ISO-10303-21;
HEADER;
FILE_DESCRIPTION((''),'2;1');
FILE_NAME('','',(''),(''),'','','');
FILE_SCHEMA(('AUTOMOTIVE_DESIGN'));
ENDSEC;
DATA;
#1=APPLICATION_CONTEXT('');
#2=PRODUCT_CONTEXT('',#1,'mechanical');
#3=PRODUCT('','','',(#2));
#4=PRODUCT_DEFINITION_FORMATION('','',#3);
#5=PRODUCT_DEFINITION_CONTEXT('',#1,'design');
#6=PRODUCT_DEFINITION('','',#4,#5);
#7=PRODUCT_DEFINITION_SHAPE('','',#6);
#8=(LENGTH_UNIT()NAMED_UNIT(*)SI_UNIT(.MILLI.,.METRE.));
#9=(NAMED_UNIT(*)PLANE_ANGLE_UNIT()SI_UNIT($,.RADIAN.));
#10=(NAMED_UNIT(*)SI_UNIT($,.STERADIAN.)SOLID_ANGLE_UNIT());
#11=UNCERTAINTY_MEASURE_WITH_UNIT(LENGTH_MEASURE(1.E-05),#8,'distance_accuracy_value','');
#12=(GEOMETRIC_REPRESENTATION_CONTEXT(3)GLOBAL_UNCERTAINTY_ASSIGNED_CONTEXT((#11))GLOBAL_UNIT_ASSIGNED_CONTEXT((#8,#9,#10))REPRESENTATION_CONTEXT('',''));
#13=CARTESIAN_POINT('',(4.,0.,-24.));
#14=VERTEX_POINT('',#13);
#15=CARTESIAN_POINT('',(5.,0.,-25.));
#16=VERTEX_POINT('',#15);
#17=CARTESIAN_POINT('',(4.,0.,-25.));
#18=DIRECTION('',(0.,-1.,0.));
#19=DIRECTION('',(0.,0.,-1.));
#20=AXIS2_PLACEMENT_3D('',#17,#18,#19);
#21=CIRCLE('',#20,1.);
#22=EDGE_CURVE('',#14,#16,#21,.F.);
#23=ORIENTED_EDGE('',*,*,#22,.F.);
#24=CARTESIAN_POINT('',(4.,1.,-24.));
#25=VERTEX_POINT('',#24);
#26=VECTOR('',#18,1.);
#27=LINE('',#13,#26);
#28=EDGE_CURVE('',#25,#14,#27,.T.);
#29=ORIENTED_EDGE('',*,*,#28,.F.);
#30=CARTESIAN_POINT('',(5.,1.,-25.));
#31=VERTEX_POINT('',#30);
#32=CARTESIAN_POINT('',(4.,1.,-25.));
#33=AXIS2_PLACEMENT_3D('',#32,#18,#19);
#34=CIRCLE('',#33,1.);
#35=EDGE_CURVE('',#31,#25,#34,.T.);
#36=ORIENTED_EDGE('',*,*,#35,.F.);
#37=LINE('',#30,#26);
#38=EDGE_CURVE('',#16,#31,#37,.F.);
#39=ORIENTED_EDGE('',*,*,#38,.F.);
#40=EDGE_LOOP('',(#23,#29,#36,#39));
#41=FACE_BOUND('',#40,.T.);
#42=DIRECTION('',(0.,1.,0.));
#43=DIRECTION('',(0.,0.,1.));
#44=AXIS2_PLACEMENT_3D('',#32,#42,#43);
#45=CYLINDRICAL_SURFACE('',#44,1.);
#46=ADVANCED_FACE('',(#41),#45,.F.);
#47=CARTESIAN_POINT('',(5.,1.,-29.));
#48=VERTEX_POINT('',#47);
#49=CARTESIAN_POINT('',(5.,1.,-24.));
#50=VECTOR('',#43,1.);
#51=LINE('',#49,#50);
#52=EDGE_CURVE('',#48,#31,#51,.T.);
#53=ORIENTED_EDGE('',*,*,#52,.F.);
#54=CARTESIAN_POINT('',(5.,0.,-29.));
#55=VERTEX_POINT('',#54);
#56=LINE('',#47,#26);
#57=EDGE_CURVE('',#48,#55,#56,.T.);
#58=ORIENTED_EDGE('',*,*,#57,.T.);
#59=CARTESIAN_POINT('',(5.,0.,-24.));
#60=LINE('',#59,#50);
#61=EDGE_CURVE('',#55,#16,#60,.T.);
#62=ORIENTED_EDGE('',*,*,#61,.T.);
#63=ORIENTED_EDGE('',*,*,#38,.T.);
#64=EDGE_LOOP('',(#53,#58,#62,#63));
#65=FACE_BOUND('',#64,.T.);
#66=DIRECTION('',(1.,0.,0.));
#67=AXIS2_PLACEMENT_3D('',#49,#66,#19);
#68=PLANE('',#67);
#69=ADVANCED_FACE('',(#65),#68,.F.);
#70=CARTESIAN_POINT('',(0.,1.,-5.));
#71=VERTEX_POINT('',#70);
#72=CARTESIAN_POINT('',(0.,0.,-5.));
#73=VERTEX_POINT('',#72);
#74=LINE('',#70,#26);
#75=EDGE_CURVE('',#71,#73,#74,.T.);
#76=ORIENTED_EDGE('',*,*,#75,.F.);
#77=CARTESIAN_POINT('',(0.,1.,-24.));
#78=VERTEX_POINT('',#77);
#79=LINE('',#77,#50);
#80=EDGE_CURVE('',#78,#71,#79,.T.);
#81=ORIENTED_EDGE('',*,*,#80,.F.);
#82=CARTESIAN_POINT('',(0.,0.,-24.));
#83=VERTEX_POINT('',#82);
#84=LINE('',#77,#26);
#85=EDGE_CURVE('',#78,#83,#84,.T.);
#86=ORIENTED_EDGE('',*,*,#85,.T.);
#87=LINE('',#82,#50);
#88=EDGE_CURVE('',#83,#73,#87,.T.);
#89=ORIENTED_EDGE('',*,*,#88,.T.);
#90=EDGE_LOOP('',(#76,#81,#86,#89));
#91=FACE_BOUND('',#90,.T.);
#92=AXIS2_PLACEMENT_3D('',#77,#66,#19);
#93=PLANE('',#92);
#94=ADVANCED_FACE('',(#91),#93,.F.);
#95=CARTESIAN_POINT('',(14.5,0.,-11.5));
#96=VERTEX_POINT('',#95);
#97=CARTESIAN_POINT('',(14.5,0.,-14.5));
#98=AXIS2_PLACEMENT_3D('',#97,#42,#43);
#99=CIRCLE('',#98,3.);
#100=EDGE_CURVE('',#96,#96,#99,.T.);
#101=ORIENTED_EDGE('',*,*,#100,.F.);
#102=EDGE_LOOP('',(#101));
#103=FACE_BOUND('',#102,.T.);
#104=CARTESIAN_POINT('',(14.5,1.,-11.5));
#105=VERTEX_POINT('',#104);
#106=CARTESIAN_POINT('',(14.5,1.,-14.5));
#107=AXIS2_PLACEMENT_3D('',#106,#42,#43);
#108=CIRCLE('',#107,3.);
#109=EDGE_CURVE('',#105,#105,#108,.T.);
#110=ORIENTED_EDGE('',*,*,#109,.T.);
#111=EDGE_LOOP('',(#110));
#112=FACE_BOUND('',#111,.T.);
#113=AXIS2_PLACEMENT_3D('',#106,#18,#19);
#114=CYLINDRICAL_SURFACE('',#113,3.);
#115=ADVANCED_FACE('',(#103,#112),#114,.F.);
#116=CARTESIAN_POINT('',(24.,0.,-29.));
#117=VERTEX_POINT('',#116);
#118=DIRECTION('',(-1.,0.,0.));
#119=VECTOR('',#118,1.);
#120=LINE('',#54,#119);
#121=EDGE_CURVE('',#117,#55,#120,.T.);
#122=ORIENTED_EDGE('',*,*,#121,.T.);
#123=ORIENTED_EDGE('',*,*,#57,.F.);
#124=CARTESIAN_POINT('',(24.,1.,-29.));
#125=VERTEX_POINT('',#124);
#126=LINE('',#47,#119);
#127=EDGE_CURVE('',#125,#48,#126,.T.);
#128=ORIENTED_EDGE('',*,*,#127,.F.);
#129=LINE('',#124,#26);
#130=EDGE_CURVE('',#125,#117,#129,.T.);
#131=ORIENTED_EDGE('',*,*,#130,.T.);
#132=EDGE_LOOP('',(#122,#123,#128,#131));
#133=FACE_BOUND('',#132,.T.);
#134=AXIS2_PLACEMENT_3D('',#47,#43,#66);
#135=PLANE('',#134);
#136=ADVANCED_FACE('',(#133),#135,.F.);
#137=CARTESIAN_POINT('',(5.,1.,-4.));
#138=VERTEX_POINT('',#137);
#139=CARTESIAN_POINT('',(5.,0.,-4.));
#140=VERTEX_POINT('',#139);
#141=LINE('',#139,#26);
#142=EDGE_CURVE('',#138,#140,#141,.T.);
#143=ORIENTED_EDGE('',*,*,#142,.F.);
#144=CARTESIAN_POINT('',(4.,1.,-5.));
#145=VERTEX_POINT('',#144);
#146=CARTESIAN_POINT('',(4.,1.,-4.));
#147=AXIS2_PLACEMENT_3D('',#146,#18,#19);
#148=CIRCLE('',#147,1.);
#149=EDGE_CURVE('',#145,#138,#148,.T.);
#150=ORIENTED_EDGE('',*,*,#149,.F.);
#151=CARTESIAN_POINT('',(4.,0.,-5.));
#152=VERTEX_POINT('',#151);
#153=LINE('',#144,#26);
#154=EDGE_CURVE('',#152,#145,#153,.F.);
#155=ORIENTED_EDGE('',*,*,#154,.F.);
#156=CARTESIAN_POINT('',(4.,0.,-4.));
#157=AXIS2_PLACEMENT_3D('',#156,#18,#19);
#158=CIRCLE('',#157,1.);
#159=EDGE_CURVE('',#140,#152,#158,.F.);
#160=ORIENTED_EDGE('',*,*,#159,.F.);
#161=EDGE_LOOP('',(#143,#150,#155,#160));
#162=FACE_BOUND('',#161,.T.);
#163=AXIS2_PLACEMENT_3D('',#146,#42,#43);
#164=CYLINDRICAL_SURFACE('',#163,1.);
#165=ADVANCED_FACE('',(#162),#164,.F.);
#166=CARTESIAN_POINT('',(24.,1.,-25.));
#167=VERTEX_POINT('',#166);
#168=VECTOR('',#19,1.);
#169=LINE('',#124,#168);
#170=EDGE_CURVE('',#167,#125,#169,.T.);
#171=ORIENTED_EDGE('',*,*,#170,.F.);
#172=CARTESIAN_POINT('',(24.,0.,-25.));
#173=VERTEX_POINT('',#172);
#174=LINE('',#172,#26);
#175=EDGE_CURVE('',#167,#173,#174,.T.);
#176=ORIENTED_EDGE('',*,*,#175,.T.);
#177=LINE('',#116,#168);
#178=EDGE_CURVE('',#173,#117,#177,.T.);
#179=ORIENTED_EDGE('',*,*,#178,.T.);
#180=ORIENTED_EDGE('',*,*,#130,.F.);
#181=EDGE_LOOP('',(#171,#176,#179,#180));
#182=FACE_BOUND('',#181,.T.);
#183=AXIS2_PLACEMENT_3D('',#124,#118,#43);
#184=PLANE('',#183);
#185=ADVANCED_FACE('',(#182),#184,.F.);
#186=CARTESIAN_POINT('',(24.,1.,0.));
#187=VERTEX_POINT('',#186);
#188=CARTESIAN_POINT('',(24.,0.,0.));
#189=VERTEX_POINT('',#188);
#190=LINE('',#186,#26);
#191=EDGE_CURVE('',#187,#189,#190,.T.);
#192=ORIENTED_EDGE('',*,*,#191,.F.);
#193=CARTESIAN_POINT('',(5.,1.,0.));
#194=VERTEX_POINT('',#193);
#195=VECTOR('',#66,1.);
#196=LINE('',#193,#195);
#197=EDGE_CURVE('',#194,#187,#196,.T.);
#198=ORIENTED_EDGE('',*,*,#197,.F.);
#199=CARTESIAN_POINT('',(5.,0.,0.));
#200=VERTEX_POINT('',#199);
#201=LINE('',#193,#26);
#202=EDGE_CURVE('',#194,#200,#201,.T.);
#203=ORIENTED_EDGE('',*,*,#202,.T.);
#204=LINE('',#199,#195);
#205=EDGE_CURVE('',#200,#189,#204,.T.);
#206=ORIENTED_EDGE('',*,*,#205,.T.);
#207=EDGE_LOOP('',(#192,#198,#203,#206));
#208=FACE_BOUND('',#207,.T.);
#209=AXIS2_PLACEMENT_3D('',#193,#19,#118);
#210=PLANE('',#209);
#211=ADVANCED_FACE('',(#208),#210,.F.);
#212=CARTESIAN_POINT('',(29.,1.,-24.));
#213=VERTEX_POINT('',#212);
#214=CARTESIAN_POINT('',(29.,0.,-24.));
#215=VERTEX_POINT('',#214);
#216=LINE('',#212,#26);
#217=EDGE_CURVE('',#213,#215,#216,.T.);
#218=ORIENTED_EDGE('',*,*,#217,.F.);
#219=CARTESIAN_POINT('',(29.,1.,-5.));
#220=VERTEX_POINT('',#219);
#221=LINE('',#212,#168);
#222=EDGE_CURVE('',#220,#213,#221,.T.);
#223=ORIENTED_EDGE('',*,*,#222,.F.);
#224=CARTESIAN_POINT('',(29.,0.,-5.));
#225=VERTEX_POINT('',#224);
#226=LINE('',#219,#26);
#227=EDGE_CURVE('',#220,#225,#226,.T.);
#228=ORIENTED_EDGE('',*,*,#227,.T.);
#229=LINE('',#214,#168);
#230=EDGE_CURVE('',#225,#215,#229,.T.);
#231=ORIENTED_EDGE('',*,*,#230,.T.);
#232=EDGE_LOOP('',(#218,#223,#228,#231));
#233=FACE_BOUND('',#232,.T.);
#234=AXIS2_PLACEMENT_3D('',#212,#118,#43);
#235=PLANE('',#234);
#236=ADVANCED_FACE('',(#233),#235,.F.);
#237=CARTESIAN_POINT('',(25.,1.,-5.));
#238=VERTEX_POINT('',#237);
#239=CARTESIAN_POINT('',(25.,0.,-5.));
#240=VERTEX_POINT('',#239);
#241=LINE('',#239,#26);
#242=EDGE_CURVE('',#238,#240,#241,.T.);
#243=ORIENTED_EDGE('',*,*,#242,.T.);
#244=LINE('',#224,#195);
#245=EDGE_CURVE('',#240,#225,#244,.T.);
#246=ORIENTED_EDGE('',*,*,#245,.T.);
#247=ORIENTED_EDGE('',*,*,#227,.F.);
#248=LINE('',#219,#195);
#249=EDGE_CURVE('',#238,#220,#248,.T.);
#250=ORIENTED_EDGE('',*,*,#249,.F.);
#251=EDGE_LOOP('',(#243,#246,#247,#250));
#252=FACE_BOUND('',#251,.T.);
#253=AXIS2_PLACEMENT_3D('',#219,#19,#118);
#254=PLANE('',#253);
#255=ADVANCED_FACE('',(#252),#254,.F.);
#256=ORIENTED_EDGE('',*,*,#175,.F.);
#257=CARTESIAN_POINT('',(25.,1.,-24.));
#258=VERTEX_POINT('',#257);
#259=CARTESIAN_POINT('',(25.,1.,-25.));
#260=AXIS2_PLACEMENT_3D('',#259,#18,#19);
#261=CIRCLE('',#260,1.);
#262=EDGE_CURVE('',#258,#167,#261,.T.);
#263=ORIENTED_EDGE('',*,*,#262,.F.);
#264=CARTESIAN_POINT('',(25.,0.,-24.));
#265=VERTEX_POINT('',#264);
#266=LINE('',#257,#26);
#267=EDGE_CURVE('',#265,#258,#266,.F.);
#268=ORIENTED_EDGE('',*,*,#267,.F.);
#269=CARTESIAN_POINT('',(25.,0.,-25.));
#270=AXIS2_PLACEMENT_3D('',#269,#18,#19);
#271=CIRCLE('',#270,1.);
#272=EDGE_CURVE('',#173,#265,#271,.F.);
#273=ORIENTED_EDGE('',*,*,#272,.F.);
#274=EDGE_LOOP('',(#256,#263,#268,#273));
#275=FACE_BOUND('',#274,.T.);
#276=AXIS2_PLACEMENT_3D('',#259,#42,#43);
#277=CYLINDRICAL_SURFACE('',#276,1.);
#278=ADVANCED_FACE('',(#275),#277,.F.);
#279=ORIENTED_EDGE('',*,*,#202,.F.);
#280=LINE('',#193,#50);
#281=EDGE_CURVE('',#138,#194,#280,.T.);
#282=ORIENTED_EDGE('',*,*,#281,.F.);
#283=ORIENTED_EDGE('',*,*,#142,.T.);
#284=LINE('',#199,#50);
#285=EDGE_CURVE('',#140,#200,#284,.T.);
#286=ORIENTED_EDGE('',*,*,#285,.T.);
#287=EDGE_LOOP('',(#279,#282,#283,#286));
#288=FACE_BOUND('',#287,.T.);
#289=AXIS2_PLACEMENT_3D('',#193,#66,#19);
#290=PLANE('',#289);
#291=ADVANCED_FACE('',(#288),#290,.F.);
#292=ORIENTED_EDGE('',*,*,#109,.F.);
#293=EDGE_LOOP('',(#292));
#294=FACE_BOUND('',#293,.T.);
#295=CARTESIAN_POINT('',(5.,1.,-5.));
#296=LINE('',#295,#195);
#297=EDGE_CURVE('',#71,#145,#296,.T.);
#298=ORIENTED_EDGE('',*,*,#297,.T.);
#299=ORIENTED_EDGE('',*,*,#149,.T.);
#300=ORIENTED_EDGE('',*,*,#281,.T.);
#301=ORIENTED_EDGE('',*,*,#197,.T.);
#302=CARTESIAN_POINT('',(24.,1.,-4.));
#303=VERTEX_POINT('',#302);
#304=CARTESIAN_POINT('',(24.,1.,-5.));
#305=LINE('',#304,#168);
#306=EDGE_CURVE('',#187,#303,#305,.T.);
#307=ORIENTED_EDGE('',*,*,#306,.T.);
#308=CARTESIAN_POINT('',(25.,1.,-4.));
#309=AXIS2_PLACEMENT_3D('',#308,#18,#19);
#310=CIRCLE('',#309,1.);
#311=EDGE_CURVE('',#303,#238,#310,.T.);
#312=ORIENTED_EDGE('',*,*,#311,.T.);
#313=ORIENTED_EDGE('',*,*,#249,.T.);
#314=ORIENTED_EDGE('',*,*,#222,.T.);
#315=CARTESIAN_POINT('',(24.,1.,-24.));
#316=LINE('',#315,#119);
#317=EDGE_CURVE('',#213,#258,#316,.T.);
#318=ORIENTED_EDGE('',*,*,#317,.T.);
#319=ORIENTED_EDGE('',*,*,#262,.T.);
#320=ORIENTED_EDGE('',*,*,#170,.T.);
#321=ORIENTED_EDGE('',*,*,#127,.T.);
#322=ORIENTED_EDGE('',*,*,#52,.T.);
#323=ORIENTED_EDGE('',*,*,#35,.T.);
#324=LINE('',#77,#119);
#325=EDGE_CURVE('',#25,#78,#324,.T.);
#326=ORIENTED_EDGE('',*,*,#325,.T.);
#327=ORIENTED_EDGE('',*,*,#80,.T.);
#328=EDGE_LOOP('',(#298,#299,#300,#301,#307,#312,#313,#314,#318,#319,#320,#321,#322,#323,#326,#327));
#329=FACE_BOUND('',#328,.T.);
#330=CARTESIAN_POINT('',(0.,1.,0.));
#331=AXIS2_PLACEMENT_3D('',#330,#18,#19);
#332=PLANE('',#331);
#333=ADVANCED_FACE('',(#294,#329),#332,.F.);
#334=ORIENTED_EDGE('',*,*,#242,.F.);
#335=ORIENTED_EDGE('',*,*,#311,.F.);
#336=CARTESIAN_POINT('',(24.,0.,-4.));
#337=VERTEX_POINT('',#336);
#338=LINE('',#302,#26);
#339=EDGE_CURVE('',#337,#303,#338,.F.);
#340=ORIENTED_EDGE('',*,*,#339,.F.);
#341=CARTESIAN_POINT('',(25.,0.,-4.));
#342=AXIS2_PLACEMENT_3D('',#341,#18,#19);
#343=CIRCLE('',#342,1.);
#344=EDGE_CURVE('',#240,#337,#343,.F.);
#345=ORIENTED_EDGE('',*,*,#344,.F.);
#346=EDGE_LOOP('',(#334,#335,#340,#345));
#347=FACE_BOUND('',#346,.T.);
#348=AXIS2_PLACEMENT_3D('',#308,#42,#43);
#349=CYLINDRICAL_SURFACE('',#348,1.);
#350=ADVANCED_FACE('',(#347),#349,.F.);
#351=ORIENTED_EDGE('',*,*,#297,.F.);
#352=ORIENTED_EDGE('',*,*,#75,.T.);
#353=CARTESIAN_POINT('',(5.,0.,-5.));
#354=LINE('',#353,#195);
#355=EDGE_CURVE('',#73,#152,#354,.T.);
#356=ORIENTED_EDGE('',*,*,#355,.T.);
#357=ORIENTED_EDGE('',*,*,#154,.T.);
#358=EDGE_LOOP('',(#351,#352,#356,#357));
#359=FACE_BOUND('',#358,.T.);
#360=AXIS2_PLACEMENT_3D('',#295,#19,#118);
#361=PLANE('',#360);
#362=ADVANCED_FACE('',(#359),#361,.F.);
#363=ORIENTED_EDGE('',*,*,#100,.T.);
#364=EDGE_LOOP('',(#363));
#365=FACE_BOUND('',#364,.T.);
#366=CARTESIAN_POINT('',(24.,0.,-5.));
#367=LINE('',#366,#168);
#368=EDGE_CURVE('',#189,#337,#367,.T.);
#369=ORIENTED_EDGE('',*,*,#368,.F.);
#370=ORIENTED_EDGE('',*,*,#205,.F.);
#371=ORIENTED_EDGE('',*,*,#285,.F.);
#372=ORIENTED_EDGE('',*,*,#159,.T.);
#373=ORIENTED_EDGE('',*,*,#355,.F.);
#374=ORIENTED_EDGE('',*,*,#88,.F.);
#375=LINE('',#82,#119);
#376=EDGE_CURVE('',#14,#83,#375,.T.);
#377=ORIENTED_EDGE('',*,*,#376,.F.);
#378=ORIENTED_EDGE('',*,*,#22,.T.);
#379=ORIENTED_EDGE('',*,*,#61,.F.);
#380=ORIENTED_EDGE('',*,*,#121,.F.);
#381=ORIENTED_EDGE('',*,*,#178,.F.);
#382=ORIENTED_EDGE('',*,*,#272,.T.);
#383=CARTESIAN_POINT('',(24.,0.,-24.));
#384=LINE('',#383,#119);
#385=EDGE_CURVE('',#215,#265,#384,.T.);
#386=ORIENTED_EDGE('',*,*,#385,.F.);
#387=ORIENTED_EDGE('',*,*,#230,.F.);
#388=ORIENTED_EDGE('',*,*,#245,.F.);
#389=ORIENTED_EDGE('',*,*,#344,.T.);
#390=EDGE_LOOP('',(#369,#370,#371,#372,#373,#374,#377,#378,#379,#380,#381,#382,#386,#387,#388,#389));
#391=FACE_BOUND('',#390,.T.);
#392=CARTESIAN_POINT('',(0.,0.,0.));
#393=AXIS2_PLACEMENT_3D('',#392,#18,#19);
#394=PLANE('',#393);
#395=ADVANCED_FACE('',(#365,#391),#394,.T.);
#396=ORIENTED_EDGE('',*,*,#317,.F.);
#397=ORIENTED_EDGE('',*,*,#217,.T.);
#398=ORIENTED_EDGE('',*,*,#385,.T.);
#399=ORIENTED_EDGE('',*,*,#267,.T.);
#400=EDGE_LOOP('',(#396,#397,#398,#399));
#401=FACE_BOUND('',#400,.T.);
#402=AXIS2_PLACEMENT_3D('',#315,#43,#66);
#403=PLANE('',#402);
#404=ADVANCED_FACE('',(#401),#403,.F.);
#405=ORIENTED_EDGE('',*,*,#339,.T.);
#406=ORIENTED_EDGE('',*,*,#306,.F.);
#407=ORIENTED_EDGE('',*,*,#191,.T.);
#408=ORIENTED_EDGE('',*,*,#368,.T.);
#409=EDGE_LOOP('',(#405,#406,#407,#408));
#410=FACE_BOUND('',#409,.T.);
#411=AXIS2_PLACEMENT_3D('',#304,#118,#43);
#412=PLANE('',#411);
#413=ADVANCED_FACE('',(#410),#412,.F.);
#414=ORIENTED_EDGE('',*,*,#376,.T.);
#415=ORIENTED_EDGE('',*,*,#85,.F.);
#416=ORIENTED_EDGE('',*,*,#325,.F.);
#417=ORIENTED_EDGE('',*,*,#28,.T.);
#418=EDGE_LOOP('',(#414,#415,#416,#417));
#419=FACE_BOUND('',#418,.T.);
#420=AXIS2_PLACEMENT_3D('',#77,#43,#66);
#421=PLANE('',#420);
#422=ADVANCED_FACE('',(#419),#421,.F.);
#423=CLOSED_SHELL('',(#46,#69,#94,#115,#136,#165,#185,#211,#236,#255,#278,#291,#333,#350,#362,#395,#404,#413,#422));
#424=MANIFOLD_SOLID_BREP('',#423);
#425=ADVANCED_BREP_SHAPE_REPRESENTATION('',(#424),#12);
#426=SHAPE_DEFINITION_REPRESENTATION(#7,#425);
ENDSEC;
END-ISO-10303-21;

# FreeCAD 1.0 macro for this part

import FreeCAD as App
import Part
import Sketcher

V = App.Vector
Q = App.Units.Quantity


def edges_at(feature, points):
    """Names of the edges that pass closest to the given points."""
    edges = feature.Shape.Edges
    near = lambda p: min(range(len(edges)), key=lambda i: edges[i].distToShape(Part.Vertex(*p))[0])
    return sorted({f"Edge{near(p) + 1}" for p in points})

doc = App.newDocument("Part")
body = doc.addObject("PartDesign::Body", "Body")

# Sketch on XZ plane
sketch1 = body.newObject("Sketcher::SketchObject", "Sketch")
sketch1.AttachmentSupport = (doc.getObject("XZ_Plane"), [""])
sketch1.MapMode = "FlatFace"
sketch1.addGeometry([
    Part.LineSegment(V(5, -24, 0), V(0, -24, 0)),  # 0
    Part.LineSegment(V(0, -24, 0), V(0, -5, 0)),  # 1
    Part.LineSegment(V(0, -5, 0), V(5, -5, 0)),  # 2
    Part.LineSegment(V(5, -5, 0), V(5, 0, 0)),  # 3
    Part.LineSegment(V(5, 0, 0), V(24, 0, 0)),  # 4
    Part.LineSegment(V(24, 0, 0), V(24, -5, 0)),  # 5
    Part.LineSegment(V(24, -5, 0), V(29, -5, 0)),  # 6
    Part.LineSegment(V(29, -5, 0), V(29, -24, 0)),  # 7
    Part.LineSegment(V(29, -24, 0), V(24, -24, 0)),  # 8
    Part.LineSegment(V(24, -24, 0), V(24, -29, 0)),  # 9
    Part.LineSegment(V(24, -29, 0), V(5, -29, 0)),  # 10
    Part.LineSegment(V(5, -29, 0), V(5, -24, 0)),  # 11
    Part.Circle(V(14.5, -14.5, 0), V(0, 0, 1), 3),  # 12
], False)
sketch1.addConstraint([
    Sketcher.Constraint("Coincident", 0, 2, 1, 1),
    Sketcher.Constraint("Coincident", 1, 2, 2, 1),
    Sketcher.Constraint("Coincident", 2, 2, 3, 1),
    Sketcher.Constraint("Coincident", 3, 2, 4, 1),
    Sketcher.Constraint("Coincident", 4, 2, 5, 1),
    Sketcher.Constraint("Coincident", 5, 2, 6, 1),
    Sketcher.Constraint("Coincident", 6, 2, 7, 1),
    Sketcher.Constraint("Coincident", 7, 2, 8, 1),
    Sketcher.Constraint("Coincident", 8, 2, 9, 1),
    Sketcher.Constraint("Coincident", 9, 2, 10, 1),
    Sketcher.Constraint("Coincident", 10, 2, 11, 1),
    Sketcher.Constraint("Coincident", 11, 2, 0, 1),
    Sketcher.Constraint("Horizontal", 0),
    Sketcher.Constraint("Vertical", 1),
    Sketcher.Constraint("Horizontal", 2),
    Sketcher.Constraint("Vertical", 3),
    Sketcher.Constraint("Horizontal", 4),
    Sketcher.Constraint("Vertical", 5),
    Sketcher.Constraint("Horizontal", 6),
    Sketcher.Constraint("Vertical", 7),
    Sketcher.Constraint("Horizontal", 8),
    Sketcher.Constraint("Vertical", 9),
    Sketcher.Constraint("Horizontal", 10),
    Sketcher.Constraint("Vertical", 11),
    Sketcher.Constraint("PointOnObject", 0, 2, -2),
    Sketcher.Constraint("PointOnObject", 3, 2, -1),
    Sketcher.Constraint("Horizontal", 2, 2, 5, 2),
    Sketcher.Constraint("Horizontal", 0, 2, 7, 2),
    Sketcher.Constraint("Vertical", 5, 2, 8, 2),
    Sketcher.Constraint("Vertical", 3, 2, 10, 2),
    Sketcher.Constraint("Equal", 2, 6),
    Sketcher.Constraint("Equal", 10, 1),
    Sketcher.Constraint("Equal", 8, 3),
    Sketcher.Constraint("Equal", 5, 9),
    Sketcher.Constraint("Diameter", 12, Q("6 mm")),
    Sketcher.Constraint("DistanceX", 0, 2, 0, 1, Q("5 mm")),
    Sketcher.Constraint("DistanceX", 4, 1, 4, 2, Q("19 mm")),
    Sketcher.Constraint("DistanceX", -1, 1, 12, 3, Q("14.5 mm")),
    Sketcher.Constraint("DistanceY", 12, 3, -1, 1, Q("14.5 mm")),
])
pad1 = body.newObject("PartDesign::Pad", "Pad")
pad1.Profile = sketch1
pad1.Length = 1
pad1.Reversed = True
doc.recompute()

fillet = body.newObject("PartDesign::Fillet", "Fillet")
fillet.Base = (pad1, edges_at(pad1, [
    (5, 0.5, -24),
    (24, 0.5, -24),
    (24, 0.5, -5),
    (5, 0.5, -5),
]))
fillet.Radius = 1

doc.recompute()
